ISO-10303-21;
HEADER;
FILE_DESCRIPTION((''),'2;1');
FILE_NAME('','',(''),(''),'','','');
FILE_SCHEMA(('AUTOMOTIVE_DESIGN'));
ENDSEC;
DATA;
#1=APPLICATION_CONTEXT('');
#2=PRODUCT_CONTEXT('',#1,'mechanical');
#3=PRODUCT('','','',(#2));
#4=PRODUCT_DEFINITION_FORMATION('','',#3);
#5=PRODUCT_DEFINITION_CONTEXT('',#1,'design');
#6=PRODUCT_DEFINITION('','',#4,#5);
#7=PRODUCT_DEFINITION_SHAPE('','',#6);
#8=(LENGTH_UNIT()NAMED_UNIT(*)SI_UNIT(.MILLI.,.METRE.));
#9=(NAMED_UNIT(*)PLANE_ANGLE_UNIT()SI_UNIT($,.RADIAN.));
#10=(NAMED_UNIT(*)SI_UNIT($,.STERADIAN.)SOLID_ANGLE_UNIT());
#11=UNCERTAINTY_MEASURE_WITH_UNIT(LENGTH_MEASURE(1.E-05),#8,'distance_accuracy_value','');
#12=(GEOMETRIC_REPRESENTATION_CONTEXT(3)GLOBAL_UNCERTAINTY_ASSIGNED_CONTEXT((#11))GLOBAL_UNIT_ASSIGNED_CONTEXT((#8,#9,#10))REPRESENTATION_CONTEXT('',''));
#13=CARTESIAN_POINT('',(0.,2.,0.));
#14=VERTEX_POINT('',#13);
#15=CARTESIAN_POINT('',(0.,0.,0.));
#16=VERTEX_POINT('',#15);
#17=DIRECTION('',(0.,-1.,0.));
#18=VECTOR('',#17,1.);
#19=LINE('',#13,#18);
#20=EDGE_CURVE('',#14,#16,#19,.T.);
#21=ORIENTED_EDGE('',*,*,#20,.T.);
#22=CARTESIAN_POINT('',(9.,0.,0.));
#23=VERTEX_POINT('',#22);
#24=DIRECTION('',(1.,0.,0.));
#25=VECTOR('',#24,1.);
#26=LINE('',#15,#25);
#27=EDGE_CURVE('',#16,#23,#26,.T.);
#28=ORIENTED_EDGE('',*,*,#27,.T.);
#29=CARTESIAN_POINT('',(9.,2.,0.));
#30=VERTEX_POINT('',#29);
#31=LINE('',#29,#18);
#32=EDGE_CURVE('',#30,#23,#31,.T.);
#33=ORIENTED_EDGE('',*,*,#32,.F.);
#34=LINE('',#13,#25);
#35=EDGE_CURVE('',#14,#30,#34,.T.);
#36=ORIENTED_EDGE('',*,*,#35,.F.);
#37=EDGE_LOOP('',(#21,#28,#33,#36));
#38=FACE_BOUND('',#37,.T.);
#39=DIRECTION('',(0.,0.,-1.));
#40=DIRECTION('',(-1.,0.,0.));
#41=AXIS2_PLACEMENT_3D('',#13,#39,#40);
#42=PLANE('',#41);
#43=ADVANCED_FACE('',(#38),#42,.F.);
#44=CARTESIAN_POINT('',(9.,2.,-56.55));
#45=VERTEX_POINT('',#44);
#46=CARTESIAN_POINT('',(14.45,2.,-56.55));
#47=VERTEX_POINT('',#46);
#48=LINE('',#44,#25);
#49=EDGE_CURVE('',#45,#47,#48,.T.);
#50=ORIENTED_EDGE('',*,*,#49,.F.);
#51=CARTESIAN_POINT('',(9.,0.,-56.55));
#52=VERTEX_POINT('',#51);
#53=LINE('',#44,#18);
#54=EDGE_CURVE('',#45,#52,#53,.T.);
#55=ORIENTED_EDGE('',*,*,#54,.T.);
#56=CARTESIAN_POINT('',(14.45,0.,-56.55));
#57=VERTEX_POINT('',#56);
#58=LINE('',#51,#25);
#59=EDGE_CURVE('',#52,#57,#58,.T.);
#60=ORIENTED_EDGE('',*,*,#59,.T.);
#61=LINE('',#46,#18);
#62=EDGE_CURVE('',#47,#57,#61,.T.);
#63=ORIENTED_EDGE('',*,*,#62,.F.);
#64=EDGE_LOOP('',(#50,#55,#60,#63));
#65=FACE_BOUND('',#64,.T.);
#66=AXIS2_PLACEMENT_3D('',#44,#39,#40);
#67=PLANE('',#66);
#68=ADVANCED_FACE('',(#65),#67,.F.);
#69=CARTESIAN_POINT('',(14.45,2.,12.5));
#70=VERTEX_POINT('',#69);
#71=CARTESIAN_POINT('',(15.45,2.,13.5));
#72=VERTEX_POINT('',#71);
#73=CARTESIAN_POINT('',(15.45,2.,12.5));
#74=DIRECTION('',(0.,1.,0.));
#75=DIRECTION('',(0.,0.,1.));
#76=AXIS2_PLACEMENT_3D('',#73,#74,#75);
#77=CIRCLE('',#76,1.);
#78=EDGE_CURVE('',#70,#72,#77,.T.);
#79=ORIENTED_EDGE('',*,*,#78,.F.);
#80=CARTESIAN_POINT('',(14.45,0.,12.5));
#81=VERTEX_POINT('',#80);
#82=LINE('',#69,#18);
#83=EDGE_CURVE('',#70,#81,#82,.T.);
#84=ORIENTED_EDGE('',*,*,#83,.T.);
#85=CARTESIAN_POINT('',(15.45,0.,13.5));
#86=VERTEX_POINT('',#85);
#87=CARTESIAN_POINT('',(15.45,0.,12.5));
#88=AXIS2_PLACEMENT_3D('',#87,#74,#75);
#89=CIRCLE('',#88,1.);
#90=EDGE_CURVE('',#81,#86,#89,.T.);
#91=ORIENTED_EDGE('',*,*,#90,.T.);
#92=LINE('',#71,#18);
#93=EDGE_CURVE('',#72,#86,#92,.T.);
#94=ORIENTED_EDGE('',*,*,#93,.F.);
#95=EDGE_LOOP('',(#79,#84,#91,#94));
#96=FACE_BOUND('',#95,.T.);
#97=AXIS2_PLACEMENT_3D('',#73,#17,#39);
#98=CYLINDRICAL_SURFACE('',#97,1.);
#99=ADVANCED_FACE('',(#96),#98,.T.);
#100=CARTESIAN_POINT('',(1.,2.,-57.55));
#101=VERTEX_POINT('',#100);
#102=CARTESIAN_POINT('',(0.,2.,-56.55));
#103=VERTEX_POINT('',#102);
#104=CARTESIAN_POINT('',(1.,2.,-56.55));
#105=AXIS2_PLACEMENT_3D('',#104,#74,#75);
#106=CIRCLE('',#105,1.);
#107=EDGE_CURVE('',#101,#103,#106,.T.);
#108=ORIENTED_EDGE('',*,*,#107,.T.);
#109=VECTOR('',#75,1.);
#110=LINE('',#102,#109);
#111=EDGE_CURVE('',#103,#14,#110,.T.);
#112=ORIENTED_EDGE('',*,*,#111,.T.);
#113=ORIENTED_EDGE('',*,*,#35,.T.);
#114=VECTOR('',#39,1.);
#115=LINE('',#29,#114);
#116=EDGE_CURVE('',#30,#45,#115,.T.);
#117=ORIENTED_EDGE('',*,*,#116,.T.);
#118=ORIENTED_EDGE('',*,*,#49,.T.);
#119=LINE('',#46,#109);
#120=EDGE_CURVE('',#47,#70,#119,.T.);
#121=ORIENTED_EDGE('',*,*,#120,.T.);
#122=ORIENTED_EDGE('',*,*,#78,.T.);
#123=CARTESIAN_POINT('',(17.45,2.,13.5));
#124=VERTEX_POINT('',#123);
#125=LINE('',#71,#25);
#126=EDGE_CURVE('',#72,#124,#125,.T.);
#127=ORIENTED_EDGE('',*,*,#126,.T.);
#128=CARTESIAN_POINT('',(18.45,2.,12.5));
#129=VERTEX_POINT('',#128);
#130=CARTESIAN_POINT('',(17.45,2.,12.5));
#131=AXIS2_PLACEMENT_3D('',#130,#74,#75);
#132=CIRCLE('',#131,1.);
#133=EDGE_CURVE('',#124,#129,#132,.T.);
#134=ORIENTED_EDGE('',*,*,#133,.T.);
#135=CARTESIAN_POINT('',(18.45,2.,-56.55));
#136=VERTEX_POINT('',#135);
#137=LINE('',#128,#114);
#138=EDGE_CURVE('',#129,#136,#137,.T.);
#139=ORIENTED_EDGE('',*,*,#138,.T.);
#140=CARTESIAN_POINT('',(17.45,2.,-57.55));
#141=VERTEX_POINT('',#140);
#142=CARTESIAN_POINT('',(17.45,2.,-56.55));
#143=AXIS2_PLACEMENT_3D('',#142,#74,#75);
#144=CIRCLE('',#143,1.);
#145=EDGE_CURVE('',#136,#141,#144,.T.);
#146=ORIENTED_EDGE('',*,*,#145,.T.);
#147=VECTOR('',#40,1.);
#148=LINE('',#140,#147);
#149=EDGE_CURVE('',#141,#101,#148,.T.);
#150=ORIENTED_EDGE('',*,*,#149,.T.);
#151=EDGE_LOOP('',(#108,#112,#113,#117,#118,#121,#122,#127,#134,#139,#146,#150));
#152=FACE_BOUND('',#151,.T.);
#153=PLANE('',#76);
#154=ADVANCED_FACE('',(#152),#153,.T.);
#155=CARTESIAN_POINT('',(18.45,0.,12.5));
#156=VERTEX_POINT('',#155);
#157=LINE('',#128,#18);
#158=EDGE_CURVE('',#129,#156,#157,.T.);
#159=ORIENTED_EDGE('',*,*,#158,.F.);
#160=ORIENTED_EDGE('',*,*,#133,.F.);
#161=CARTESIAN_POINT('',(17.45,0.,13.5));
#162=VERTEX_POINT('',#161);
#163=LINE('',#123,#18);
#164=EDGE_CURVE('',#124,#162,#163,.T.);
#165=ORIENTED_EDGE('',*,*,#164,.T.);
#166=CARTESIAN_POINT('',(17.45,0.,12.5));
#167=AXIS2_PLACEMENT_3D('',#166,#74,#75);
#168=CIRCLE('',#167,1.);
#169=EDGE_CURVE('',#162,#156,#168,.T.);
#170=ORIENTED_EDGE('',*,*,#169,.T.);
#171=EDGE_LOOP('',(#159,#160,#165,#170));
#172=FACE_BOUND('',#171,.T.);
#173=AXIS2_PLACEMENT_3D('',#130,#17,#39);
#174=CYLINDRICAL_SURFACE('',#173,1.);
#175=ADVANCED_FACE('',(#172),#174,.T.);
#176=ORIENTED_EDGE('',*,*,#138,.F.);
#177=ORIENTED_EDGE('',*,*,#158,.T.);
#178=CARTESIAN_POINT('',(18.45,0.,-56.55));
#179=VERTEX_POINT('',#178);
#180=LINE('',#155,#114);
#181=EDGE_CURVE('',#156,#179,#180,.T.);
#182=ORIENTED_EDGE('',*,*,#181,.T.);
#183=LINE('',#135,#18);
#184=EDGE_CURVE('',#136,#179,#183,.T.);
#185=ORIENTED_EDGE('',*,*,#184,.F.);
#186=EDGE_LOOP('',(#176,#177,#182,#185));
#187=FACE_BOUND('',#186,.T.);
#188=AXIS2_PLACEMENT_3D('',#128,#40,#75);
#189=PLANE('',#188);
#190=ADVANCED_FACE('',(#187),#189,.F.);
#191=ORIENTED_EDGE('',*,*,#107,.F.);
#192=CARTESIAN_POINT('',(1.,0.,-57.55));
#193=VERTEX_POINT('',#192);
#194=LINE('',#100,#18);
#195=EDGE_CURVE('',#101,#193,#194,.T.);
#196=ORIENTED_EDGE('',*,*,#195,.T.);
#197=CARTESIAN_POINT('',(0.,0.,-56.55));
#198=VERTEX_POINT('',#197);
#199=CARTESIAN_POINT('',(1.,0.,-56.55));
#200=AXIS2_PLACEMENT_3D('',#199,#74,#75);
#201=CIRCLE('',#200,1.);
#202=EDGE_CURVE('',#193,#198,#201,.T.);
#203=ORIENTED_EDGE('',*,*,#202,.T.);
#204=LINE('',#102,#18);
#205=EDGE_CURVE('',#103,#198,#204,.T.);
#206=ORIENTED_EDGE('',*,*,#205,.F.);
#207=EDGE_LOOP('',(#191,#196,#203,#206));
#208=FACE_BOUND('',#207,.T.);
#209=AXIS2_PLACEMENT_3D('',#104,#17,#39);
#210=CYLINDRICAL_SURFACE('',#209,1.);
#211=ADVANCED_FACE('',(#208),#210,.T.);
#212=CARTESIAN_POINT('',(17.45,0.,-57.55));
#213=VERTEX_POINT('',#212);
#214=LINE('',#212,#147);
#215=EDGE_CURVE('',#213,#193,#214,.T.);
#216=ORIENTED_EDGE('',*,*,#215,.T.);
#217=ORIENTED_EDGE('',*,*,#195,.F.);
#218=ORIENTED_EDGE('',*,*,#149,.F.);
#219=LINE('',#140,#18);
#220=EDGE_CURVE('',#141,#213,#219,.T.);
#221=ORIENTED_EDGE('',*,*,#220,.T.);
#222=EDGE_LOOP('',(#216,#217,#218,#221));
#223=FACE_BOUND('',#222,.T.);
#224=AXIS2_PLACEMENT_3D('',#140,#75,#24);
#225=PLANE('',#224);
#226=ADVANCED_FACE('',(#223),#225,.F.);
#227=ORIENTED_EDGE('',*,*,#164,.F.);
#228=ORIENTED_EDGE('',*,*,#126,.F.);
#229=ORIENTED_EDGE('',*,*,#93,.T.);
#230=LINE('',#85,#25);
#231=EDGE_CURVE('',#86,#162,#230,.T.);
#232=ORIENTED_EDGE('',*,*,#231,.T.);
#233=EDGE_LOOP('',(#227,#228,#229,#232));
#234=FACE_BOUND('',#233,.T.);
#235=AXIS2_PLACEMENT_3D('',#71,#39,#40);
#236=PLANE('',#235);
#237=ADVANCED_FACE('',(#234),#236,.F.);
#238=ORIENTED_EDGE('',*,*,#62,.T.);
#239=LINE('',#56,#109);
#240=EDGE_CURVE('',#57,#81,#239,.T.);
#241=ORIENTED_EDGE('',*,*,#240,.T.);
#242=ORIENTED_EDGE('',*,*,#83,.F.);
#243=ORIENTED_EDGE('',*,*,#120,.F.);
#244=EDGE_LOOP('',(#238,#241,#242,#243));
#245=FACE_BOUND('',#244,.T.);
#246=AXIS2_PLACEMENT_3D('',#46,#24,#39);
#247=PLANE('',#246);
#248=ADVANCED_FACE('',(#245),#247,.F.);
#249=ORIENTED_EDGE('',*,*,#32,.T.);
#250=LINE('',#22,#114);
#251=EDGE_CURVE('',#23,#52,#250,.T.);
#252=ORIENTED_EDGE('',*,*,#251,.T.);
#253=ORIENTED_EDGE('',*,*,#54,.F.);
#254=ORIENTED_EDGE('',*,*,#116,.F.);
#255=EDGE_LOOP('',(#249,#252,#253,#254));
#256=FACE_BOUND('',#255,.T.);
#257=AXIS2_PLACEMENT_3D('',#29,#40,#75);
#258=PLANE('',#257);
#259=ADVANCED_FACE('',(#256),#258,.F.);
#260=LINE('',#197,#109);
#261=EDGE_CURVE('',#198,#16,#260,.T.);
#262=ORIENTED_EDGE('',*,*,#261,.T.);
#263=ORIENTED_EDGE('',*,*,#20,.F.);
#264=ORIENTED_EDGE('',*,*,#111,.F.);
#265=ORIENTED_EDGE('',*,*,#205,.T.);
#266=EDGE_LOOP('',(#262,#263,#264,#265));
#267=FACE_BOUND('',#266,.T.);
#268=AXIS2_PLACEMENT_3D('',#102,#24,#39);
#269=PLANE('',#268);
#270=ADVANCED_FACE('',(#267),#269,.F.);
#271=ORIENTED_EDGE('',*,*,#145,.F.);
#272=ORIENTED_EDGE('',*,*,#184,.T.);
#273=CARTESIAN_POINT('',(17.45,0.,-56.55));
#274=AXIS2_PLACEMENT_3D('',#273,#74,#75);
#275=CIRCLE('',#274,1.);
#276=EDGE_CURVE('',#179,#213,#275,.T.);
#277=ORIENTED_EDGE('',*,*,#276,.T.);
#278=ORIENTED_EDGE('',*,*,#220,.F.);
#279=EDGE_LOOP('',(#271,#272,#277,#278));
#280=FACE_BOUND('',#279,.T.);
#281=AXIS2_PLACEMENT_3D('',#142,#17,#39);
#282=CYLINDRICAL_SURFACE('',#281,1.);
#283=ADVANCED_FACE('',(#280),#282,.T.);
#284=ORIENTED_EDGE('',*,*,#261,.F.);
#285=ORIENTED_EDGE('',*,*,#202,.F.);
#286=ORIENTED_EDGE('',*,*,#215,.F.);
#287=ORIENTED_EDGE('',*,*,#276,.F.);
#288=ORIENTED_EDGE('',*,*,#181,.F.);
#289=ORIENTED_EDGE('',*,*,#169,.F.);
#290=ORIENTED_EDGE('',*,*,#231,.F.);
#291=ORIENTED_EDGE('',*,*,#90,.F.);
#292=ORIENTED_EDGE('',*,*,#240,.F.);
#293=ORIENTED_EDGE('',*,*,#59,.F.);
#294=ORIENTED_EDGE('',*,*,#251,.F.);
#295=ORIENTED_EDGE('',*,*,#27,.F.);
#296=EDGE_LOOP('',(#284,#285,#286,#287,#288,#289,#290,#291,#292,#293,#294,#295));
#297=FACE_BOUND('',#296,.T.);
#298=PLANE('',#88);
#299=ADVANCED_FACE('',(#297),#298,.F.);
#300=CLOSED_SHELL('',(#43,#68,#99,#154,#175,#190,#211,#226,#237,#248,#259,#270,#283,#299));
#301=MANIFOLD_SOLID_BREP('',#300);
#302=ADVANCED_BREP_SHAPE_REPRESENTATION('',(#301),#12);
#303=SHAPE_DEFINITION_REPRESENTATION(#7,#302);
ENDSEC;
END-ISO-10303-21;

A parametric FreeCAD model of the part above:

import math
import FreeCAD as App
import Part
import Sketcher

doc = App.newDocument("Part")
body = doc.addObject("PartDesign::Body", "Body")

# Sketch on XZ plane
sketch1 = body.newObject("Sketcher::SketchObject", "Sketch")
sketch1.AttachmentSupport = (doc.getObject("XZ_Plane"), [""])
sketch1.MapMode = "FlatFace"
sketch1.addGeometry([
    Part.LineSegment(App.Vector(0, 0, 0), App.Vector(9, 0, 0)),  # 0
    Part.LineSegment(App.Vector(9, 0, 0), App.Vector(9, -56.5, 0)),  # 1
    Part.LineSegment(App.Vector(9, -56.5, 0), App.Vector(14.4, -56.5, 0)),  # 2
    Part.LineSegment(App.Vector(14.4, -56.5, 0), App.Vector(14.4, 12.5, 0)),  # 3
    Part.ArcOfCircle(Part.Circle(App.Vector(15.5, 12.5, 0), App.Vector(0, 0, 1), 1), math.radians(90), math.radians(180)),  # 4
    Part.LineSegment(App.Vector(15.4, 13.5, 0), App.Vector(17.4, 13.5, 0)),  # 5
    Part.ArcOfCircle(Part.Circle(App.Vector(17.4, 12.5, 0), App.Vector(0, 0, 1), 1), math.radians(0), math.radians(90)),  # 6
    Part.LineSegment(App.Vector(18.4, 12.5, 0), App.Vector(18.4, -56.5, 0)),  # 7
    Part.ArcOfCircle(Part.Circle(App.Vector(17.4, -56.5, 0), App.Vector(0, 0, 1), 1), math.radians(-90), math.radians(0)),  # 8
    Part.LineSegment(App.Vector(17.4, -57.5, 0), App.Vector(1, -57.5, 0)),  # 9
    Part.ArcOfCircle(Part.Circle(App.Vector(1, -56.5, 0), App.Vector(0, 0, 1), 1), math.radians(-180), math.radians(-90)),  # 10
    Part.LineSegment(App.Vector(0, -56.5, 0), App.Vector(0, 0, 0)),  # 11
], False)
sketch1.addConstraint([
    Sketcher.Constraint("Coincident", 0, 2, 1, 1),
    Sketcher.Constraint("Coincident", 1, 2, 2, 1),
    Sketcher.Constraint("Coincident", 2, 2, 3, 1),
    Sketcher.Constraint("Tangent", 3, 2, 4, 2),
    Sketcher.Constraint("Tangent", 4, 1, 5, 1),
    Sketcher.Constraint("Tangent", 5, 2, 6, 2),
    Sketcher.Constraint("Tangent", 6, 1, 7, 1),
    Sketcher.Constraint("Tangent", 7, 2, 8, 2),
    Sketcher.Constraint("Tangent", 8, 1, 9, 1),
    Sketcher.Constraint("Tangent", 9, 2, 10, 2),
    Sketcher.Constraint("Tangent", 10, 1, 11, 1),
    Sketcher.Constraint("Coincident", 11, 2, 0, 1),
    Sketcher.Constraint("Horizontal", 0),
    Sketcher.Constraint("Vertical", 1),
    Sketcher.Constraint("Horizontal", 2),
    Sketcher.Constraint("Vertical", 3),
    Sketcher.Constraint("Horizontal", 5),
    Sketcher.Constraint("Vertical", 7),
    Sketcher.Constraint("Horizontal", 9),
    Sketcher.Constraint("Vertical", 11),
    Sketcher.Constraint("Coincident", 11, 2, -1, 1),
    Sketcher.Constraint("Equal", 4, 6),
    Sketcher.Constraint("Equal", 6, 8),
    Sketcher.Constraint("Equal", 8, 10),
    Sketcher.Constraint("Horizontal", 10, 3, 1, 2),
    Sketcher.Constraint("Radius", 4, 1.0),
    Sketcher.Constraint("DistanceX", 0, 1, 0, 2, 9.0),
    Sketcher.Constraint("DistanceX", 5, 1, 5, 2, 2.0),
    Sketcher.Constraint("DistanceX", 2, 1, 2, 2, 5.45),
    Sketcher.Constraint("DistanceY", 1, 2, 1, 1, 56.55),
    Sketcher.Constraint("DistanceY", 3, 1, 3, 2, 69.05),
])
pad1 = body.newObject("PartDesign::Pad", "Pad")
pad1.Profile = sketch1
pad1.Length = 2
pad1.Reversed = True

doc.recompute()
